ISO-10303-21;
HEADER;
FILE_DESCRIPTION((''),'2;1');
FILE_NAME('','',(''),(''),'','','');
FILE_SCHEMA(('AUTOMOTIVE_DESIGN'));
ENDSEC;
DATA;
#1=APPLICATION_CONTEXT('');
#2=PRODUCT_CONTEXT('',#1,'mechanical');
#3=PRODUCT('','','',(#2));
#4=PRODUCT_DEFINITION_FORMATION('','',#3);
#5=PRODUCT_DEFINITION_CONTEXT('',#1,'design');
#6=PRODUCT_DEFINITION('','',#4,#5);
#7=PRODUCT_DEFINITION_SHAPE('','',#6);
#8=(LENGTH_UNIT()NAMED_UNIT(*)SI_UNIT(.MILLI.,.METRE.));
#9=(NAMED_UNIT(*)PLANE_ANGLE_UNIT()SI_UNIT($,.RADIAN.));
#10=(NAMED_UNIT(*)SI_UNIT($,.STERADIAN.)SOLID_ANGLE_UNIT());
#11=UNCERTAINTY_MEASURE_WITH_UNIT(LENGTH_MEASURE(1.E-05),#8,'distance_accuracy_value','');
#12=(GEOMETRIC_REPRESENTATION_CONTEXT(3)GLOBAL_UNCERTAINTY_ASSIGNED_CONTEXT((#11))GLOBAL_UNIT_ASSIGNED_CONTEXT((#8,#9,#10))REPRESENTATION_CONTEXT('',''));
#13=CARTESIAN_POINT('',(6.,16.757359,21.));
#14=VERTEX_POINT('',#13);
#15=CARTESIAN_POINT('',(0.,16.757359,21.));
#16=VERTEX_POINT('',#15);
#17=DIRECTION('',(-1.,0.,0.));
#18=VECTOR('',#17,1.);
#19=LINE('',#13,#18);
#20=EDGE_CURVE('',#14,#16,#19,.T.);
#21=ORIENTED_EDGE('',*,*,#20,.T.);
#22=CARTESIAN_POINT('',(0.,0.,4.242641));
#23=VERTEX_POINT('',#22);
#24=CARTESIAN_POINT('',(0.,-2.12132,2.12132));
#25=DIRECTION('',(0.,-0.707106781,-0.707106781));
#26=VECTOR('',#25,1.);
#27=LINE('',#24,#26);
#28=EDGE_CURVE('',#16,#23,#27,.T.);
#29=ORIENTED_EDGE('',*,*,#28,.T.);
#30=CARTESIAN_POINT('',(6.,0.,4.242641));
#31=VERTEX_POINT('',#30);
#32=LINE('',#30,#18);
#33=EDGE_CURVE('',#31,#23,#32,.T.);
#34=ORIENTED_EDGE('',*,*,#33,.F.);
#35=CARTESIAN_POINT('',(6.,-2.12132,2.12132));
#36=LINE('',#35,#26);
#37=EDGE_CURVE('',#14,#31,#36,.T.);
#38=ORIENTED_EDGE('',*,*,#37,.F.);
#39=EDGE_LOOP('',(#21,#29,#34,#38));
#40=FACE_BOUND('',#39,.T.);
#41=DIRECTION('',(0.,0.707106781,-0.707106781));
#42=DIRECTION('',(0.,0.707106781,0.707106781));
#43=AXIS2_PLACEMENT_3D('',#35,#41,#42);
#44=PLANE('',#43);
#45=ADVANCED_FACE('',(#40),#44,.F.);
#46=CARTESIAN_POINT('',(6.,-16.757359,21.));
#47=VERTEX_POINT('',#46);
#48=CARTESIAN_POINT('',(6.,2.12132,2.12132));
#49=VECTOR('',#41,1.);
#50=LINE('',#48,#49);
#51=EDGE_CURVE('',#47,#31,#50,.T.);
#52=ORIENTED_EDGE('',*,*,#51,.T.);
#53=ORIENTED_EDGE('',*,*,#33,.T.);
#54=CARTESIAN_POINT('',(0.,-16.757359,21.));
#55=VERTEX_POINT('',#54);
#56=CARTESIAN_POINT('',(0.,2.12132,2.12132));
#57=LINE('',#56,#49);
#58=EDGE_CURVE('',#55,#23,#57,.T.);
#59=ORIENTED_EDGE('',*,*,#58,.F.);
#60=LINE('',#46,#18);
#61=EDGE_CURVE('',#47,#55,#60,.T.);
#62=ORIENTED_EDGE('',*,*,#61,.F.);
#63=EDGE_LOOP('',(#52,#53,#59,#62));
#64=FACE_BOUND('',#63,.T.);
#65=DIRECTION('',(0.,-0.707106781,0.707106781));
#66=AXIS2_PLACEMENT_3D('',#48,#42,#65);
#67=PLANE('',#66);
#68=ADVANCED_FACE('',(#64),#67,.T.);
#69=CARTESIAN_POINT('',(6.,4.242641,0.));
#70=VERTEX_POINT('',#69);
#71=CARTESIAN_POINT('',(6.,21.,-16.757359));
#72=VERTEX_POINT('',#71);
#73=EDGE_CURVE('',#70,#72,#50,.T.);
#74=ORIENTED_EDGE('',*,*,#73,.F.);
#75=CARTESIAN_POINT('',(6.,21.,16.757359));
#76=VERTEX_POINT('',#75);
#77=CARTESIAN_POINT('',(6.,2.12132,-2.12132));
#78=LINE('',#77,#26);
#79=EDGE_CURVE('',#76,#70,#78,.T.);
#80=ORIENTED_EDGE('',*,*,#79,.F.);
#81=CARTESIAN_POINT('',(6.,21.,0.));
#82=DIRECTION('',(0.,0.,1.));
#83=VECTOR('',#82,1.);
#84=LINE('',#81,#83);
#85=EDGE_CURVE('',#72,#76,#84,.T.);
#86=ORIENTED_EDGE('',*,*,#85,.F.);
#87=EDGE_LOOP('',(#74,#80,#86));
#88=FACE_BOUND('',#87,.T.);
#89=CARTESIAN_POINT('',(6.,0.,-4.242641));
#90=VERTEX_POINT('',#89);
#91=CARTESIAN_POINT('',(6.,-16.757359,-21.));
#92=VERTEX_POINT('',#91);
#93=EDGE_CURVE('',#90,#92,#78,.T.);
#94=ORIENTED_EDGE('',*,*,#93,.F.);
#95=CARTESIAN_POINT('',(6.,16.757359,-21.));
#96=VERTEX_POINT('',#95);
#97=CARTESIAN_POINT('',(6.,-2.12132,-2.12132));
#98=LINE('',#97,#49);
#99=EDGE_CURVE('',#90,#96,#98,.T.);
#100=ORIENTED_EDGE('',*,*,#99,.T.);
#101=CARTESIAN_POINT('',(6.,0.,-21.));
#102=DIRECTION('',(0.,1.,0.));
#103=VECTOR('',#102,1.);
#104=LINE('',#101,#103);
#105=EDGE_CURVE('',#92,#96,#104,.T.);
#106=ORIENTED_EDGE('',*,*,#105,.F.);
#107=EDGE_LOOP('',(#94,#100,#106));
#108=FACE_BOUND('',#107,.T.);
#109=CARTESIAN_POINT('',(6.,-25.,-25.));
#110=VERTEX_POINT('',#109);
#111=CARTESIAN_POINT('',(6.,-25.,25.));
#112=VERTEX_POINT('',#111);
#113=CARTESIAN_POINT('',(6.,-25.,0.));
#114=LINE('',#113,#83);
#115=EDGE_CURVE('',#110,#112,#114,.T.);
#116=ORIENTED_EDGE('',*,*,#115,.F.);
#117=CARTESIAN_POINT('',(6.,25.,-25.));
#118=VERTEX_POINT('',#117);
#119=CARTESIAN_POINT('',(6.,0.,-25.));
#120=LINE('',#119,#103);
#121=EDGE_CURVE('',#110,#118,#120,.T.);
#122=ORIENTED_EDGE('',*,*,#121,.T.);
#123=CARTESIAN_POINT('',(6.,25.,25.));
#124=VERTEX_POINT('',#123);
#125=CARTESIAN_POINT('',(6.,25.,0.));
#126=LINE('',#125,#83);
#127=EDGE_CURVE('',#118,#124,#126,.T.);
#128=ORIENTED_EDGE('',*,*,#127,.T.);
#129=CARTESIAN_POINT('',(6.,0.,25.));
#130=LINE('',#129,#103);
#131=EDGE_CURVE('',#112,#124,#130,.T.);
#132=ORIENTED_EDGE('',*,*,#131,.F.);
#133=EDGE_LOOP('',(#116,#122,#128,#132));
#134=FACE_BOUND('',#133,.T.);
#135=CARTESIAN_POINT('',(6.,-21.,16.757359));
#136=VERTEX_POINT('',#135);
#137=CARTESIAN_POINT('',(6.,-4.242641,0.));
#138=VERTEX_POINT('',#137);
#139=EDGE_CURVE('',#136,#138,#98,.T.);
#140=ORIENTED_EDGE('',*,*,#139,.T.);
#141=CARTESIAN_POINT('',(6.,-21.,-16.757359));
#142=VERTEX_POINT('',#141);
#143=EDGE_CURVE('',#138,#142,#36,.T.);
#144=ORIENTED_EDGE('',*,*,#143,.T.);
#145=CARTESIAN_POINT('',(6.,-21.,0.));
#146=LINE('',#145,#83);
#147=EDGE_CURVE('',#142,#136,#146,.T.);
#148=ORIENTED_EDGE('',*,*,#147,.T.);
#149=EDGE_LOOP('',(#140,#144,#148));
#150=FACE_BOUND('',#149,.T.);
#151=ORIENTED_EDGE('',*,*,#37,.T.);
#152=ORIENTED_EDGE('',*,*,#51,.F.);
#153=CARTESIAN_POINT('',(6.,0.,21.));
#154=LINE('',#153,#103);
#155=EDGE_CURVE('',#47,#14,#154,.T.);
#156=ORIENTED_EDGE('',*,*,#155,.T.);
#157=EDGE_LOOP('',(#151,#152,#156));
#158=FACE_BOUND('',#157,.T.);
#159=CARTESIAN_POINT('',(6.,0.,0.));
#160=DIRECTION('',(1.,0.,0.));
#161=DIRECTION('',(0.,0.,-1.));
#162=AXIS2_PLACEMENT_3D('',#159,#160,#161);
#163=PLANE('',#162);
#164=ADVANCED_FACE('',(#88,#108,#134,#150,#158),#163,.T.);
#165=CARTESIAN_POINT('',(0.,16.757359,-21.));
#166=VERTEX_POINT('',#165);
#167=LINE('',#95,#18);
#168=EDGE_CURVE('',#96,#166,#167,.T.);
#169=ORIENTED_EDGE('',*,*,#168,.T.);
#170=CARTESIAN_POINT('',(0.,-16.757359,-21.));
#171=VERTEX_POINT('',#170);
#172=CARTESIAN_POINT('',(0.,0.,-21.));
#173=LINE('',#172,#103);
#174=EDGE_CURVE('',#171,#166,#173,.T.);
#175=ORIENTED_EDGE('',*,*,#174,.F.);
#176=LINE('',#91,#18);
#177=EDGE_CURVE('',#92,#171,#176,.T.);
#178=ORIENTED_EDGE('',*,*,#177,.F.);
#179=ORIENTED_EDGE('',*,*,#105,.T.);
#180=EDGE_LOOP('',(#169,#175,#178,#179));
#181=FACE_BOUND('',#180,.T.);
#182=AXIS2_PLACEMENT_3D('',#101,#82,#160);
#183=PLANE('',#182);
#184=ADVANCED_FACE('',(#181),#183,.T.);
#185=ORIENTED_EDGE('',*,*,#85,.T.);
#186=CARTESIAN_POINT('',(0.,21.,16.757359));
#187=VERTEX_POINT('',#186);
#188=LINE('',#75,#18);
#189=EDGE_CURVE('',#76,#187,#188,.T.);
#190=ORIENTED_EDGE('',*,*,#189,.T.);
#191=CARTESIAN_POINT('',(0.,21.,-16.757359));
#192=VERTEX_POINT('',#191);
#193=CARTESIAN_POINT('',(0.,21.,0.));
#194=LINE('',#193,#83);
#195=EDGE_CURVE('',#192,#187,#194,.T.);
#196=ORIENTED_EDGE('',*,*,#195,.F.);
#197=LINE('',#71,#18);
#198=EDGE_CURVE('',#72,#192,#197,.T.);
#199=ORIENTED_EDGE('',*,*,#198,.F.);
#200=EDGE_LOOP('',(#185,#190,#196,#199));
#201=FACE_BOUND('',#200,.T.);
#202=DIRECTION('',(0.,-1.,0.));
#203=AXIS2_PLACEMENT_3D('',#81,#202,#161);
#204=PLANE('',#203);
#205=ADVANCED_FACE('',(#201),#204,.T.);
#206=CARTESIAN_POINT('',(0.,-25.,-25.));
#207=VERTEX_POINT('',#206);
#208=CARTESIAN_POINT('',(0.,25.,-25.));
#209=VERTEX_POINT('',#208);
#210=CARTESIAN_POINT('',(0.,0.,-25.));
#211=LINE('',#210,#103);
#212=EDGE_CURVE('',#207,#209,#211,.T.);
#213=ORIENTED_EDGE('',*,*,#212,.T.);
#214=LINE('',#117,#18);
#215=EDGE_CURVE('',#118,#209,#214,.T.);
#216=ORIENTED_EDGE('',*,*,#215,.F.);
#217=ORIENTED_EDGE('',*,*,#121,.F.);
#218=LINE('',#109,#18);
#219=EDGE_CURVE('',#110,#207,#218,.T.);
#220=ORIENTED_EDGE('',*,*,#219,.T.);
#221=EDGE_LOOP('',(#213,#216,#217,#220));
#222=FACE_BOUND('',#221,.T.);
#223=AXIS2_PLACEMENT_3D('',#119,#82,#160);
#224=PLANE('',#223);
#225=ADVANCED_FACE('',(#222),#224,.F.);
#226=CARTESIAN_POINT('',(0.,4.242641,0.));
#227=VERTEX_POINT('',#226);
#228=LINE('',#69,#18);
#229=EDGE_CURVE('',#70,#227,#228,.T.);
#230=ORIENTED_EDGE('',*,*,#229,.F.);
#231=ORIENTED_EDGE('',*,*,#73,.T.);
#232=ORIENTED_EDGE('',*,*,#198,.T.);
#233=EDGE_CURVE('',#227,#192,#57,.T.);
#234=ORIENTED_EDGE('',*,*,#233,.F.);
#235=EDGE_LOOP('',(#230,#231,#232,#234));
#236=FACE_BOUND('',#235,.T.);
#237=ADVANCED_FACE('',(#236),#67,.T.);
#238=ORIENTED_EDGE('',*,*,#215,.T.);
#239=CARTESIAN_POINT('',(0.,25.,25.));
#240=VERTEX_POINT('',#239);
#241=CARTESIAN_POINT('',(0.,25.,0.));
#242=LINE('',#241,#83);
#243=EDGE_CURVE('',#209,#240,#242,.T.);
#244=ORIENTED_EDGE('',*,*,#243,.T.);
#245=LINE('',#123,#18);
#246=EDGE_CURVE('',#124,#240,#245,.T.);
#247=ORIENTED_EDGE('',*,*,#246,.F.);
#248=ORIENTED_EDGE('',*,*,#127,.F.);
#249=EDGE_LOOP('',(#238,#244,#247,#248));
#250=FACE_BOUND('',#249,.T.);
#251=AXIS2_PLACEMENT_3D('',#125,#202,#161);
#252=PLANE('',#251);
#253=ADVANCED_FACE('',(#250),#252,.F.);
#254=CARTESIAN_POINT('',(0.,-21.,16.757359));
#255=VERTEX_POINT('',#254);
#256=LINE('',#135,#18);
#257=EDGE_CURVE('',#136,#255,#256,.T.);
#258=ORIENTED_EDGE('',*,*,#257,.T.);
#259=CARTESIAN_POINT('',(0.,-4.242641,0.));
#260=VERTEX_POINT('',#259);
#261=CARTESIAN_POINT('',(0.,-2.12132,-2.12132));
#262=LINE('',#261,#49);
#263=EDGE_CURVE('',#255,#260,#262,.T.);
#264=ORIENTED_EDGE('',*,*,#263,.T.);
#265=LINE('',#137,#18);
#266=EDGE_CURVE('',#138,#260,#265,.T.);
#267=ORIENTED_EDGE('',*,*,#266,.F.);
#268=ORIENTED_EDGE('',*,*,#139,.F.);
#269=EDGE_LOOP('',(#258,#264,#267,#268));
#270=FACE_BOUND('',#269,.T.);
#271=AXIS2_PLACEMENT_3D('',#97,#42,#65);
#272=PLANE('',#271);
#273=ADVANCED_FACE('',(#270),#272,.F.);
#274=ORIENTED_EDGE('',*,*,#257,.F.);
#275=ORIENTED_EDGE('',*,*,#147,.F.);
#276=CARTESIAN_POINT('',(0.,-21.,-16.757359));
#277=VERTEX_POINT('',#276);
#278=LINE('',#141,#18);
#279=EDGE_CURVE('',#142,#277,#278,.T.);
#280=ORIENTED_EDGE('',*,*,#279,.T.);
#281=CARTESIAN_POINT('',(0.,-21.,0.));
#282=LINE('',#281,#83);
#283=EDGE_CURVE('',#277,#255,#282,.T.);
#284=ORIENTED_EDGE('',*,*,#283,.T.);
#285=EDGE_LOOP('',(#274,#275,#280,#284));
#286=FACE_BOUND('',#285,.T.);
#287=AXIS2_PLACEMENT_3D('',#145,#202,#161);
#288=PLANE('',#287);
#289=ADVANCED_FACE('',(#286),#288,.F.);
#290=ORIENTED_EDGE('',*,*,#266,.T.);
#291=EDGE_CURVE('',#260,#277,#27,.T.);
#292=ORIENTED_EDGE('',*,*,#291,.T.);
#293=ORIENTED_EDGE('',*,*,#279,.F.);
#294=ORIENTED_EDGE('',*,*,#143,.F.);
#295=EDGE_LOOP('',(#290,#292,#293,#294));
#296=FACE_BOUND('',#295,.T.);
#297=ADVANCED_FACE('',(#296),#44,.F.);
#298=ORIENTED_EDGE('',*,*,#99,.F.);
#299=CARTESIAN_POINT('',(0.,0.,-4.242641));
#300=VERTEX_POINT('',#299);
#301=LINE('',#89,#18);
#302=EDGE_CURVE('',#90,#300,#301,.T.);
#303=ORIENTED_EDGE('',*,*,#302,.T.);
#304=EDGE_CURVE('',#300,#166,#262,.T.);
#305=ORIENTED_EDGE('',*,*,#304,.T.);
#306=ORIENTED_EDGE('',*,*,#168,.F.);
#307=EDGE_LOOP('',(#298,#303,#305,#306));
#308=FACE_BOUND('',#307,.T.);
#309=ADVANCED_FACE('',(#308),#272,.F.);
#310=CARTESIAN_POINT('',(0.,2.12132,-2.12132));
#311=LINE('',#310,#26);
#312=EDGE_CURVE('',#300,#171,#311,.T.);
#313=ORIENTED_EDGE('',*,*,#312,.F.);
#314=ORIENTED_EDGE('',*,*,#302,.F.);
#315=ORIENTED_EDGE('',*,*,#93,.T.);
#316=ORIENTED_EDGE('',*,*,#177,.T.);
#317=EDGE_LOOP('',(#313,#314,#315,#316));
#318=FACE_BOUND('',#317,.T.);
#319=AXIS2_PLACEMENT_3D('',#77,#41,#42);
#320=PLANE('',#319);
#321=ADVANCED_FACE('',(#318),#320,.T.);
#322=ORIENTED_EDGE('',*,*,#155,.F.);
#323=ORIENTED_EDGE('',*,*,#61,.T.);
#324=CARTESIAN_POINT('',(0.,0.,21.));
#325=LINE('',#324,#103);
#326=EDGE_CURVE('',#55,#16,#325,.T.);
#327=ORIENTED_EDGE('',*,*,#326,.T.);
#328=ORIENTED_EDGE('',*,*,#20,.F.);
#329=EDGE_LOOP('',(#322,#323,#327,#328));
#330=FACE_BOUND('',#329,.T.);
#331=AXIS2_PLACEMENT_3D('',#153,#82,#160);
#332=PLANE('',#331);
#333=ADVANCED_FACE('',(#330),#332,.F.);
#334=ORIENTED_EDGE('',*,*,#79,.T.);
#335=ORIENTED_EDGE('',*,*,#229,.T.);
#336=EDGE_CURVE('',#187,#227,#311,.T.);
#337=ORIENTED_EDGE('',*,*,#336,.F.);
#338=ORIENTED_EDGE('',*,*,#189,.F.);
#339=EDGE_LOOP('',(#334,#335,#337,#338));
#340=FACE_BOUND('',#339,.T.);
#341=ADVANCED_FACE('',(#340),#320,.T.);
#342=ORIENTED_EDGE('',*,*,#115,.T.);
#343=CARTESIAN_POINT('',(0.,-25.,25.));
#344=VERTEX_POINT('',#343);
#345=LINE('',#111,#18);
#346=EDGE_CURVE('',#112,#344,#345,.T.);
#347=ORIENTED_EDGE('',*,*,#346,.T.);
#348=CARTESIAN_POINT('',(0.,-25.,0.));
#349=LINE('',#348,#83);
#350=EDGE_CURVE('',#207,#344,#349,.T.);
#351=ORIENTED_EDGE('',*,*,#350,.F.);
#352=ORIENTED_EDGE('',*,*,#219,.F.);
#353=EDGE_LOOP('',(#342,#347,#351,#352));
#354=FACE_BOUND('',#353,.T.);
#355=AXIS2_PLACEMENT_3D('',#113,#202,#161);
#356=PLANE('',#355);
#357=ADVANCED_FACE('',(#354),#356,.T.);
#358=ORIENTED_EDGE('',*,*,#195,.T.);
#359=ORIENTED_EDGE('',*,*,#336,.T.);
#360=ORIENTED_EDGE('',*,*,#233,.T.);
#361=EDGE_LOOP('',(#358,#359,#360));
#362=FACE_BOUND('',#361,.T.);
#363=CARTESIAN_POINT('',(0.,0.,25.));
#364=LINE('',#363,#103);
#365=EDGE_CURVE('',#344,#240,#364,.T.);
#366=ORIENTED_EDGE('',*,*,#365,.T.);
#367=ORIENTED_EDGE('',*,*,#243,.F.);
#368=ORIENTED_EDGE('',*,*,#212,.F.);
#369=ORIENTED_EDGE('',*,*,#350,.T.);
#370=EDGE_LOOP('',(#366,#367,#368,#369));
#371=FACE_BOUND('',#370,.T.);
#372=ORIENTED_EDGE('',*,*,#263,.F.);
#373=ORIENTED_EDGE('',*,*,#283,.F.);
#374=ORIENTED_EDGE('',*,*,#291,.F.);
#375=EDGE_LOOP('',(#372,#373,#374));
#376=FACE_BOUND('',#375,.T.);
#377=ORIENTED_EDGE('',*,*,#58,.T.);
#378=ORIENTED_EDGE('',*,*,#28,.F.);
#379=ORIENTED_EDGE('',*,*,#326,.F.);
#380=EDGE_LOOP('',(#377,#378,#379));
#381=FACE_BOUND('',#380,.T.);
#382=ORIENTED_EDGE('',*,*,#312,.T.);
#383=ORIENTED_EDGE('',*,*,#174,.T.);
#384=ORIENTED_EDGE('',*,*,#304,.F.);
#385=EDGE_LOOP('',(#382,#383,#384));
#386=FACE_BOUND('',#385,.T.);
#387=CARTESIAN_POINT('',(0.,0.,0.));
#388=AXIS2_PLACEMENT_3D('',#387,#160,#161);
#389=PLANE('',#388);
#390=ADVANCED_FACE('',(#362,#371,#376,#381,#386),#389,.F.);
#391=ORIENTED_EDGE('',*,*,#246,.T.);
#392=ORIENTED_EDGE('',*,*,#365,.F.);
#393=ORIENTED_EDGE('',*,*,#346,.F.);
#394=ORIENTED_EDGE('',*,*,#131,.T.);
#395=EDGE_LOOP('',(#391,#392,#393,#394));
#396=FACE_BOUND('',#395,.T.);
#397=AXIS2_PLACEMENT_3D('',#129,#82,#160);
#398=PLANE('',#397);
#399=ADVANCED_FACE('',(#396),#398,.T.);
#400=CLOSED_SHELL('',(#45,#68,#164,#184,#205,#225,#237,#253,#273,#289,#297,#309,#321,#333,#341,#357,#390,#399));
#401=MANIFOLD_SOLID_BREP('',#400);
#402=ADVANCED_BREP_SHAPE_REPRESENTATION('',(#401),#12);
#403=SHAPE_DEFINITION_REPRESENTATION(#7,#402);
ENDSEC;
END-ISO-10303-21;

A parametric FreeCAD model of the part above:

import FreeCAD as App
import Part
import Sketcher

doc = App.newDocument("Part")
body = doc.addObject("PartDesign::Body", "Body")

# Sketch on YZ plane
sketch1 = body.newObject("Sketcher::SketchObject", "Sketch")
sketch1.AttachmentSupport = (doc.getObject("YZ_Plane"), [""])
sketch1.MapMode = "FlatFace"
sketch1.addGeometry([
    Part.LineSegment(App.Vector(-25, 25, 0), App.Vector(-25, -25, 0)),  # 0
    Part.LineSegment(App.Vector(-25, -25, 0), App.Vector(25, -25, 0)),  # 1
    Part.LineSegment(App.Vector(25, -25, 0), App.Vector(25, 25, 0)),  # 2
    Part.LineSegment(App.Vector(25, 25, 0), App.Vector(-25, 25, 0)),  # 3
    Part.LineSegment(App.Vector(17, -21, 0), App.Vector(-17, -21, 0)),  # 4
    Part.LineSegment(App.Vector(-17, -21, 0), App.Vector(0, -4, 0)),  # 5
    Part.LineSegment(App.Vector(0, -4, 0), App.Vector(17, -21, 0)),  # 6
    Part.LineSegment(App.Vector(-21, -17, 0), App.Vector(-21, 17, 0)),  # 7
    Part.LineSegment(App.Vector(-21, 17, 0), App.Vector(-4, 0, 0)),  # 8
    Part.LineSegment(App.Vector(-4, 0, 0), App.Vector(-21, -17, 0)),  # 9
    Part.LineSegment(App.Vector(21, -17, 0), App.Vector(4, 0, 0)),  # 10
    Part.LineSegment(App.Vector(4, 0, 0), App.Vector(21, 17, 0)),  # 11
    Part.LineSegment(App.Vector(21, 17, 0), App.Vector(21, -17, 0)),  # 12
    Part.LineSegment(App.Vector(-17, 21, 0), App.Vector(17, 21, 0)),  # 13
    Part.LineSegment(App.Vector(17, 21, 0), App.Vector(0, 4, 0)),  # 14
    Part.LineSegment(App.Vector(0, 4, 0), App.Vector(-17, 21, 0)),  # 15
], False)
sketch1.addConstraint([
    Sketcher.Constraint("Coincident", 0, 2, 1, 1),
    Sketcher.Constraint("Coincident", 1, 2, 2, 1),
    Sketcher.Constraint("Coincident", 2, 2, 3, 1),
    Sketcher.Constraint("Coincident", 3, 2, 0, 1),
    Sketcher.Constraint("Coincident", 4, 2, 5, 1),
    Sketcher.Constraint("Coincident", 5, 2, 6, 1),
    Sketcher.Constraint("Coincident", 6, 2, 4, 1),
    Sketcher.Constraint("Coincident", 7, 2, 8, 1),
    Sketcher.Constraint("Coincident", 8, 2, 9, 1),
    Sketcher.Constraint("Coincident", 9, 2, 7, 1),
    Sketcher.Constraint("Coincident", 10, 2, 11, 1),
    Sketcher.Constraint("Coincident", 11, 2, 12, 1),
    Sketcher.Constraint("Coincident", 12, 2, 10, 1),
    Sketcher.Constraint("Coincident", 13, 2, 14, 1),
    Sketcher.Constraint("Coincident", 14, 2, 15, 1),
    Sketcher.Constraint("Coincident", 15, 2, 13, 1),
    Sketcher.Constraint("Vertical", 0),
    Sketcher.Constraint("Horizontal", 1),
    Sketcher.Constraint("Vertical", 2),
    Sketcher.Constraint("Horizontal", 3),
    Sketcher.Constraint("Horizontal", 4),
    Sketcher.Constraint("Vertical", 7),
    Sketcher.Constraint("Vertical", 12),
    Sketcher.Constraint("Horizontal", 13),
    Sketcher.Constraint("Symmetric", 0, 2, 2, 2, -1, 1),
    Sketcher.Constraint("Symmetric", 8, 2, 10, 2, -1, 1),
    Sketcher.Constraint("Symmetric", 9, 2, 11, 2, -1, 1),
    Sketcher.Constraint("Symmetric", 4, 2, 13, 2, -1, 1),
    Sketcher.Constraint("Symmetric", 5, 2, 14, 2, -1, 1),
    Sketcher.Constraint("PointOnObject", 5, 2, -2),
    Sketcher.Constraint("PointOnObject", 8, 2, -1),
    Sketcher.Constraint("Perpendicular", 5, 6),
    Sketcher.Constraint("Parallel", 6, 8),
    Sketcher.Constraint("Perpendicular", 8, 9),
    Sketcher.Constraint("Perpendicular", 9, 10),
    Sketcher.Constraint("Perpendicular", 14, 15),
    Sketcher.Constraint("Horizontal", 7, 2, 11, 2),
    Sketcher.Constraint("Equal", 3, 0),
    Sketcher.Constraint("Equal", 13, 7),
    Sketcher.Constraint("DistanceX", 1, 1, 1, 2, 50.0),
    Sketcher.Constraint("DistanceY", 4, 2, -1, 1, 21.0),
    Sketcher.Constraint("DistanceX", 7, 2, -1, 1, 21.0),
    Sketcher.Constraint("DistanceX", 4, 2, 4, 1, 33.514719),
])
pad1 = body.newObject("PartDesign::Pad", "Pad")
pad1.Profile = sketch1
pad1.Length = 6

doc.recompute()
